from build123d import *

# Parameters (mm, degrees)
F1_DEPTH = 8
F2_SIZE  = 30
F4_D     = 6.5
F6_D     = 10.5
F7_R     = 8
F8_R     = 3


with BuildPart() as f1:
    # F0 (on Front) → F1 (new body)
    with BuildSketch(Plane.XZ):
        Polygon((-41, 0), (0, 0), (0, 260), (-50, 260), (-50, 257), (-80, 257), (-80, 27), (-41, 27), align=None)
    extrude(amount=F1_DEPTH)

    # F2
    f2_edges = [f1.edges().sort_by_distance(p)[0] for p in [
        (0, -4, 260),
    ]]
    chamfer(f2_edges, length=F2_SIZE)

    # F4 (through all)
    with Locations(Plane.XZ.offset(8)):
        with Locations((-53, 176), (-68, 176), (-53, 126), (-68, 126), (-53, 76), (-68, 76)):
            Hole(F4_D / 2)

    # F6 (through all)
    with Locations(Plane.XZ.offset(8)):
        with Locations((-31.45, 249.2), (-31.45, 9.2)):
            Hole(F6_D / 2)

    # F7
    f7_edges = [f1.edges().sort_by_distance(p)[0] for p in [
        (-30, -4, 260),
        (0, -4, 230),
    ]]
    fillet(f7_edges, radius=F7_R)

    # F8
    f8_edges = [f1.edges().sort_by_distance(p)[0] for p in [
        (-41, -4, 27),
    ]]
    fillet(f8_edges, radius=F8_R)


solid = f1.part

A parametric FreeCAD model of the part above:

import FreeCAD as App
import Part
import Sketcher
from FreeCAD import Vector


def edges_at(feature, points):
    """Names of the edges that pass closest to the given points."""
    edges = feature.Shape.Edges
    near = lambda p: min(range(len(edges)), key=lambda i: edges[i].distToShape(Part.Vertex(*p))[0])
    return sorted({f"Edge{near(p) + 1}" for p in points})

doc = App.newDocument("Part")
body = doc.addObject("PartDesign::Body", "Body")

# Sketch on XZ plane
sketch1 = body.newObject("Sketcher::SketchObject", "Sketch")
sketch1.AttachmentSupport = (doc.getObject("XZ_Plane"), [""])
sketch1.MapMode = "FlatFace"
sketch1.addGeometry(Part.LineSegment(Vector(-41, 0, 0), Vector(0, 0, 0)), False)
sketch1.addGeometry(Part.LineSegment(Vector(0, 0, 0), Vector(0, 260, 0)), False)
sketch1.addGeometry(Part.LineSegment(Vector(0, 260, 0), Vector(-50, 260, 0)), False)
sketch1.addGeometry(Part.LineSegment(Vector(-50, 260, 0), Vector(-50, 257, 0)), False)
sketch1.addGeometry(Part.LineSegment(Vector(-50, 257, 0), Vector(-80, 257, 0)), False)
sketch1.addGeometry(Part.LineSegment(Vector(-80, 257, 0), Vector(-80, 27, 0)), False)
sketch1.addGeometry(Part.LineSegment(Vector(-80, 27, 0), Vector(-41, 27, 0)), False)
sketch1.addGeometry(Part.LineSegment(Vector(-41, 27, 0), Vector(-41, 0, 0)), False)
sketch1.addConstraint(Sketcher.Constraint("Coincident", 0, 2, 1, 1))
sketch1.addConstraint(Sketcher.Constraint("Coincident", 1, 2, 2, 1))
sketch1.addConstraint(Sketcher.Constraint("Coincident", 2, 2, 3, 1))
sketch1.addConstraint(Sketcher.Constraint("Coincident", 3, 2, 4, 1))
sketch1.addConstraint(Sketcher.Constraint("Coincident", 4, 2, 5, 1))
sketch1.addConstraint(Sketcher.Constraint("Coincident", 5, 2, 6, 1))
sketch1.addConstraint(Sketcher.Constraint("Coincident", 6, 2, 7, 1))
sketch1.addConstraint(Sketcher.Constraint("Coincident", 7, 2, 0, 1))
sketch1.addConstraint(Sketcher.Constraint("Horizontal", 0))
sketch1.addConstraint(Sketcher.Constraint("Vertical", 1))
sketch1.addConstraint(Sketcher.Constraint("Horizontal", 2))
sketch1.addConstraint(Sketcher.Constraint("Vertical", 3))
sketch1.addConstraint(Sketcher.Constraint("Horizontal", 4))
sketch1.addConstraint(Sketcher.Constraint("Vertical", 5))
sketch1.addConstraint(Sketcher.Constraint("Horizontal", 6))
sketch1.addConstraint(Sketcher.Constraint("Vertical", 7))
sketch1.addConstraint(Sketcher.Constraint("Coincident", 0, 2, -1, 1))
sketch1.addConstraint(Sketcher.Constraint("DistanceX", 0, 1, 0, 2, 41.0))
sketch1.addConstraint(Sketcher.Constraint("DistanceX", 2, 2, 2, 1, 50.0))
sketch1.addConstraint(Sketcher.Constraint("DistanceX", 4, 2, 4, 1, 30.0))
sketch1.addConstraint(Sketcher.Constraint("DistanceY", 1, 1, 1, 2, 260.0))
sketch1.addConstraint(Sketcher.Constraint("DistanceY", 3, 2, 3, 1, 3.0))
sketch1.addConstraint(Sketcher.Constraint("DistanceY", 5, 2, 5, 1, 230.0))
pad1 = body.newObject("PartDesign::Pad", "Pad")
pad1.Profile = sketch1
pad1.Length = 8
doc.recompute()

chamfer = body.newObject("PartDesign::Chamfer", "Chamfer")
chamfer.Base = (pad1, edges_at(pad1, [(0, -4, 260)]))
chamfer.Size = 30

# Sketch on XZ plane
sketch2 = body.newObject("Sketcher::SketchObject", "Sketch001")
sketch2.AttachmentSupport = (doc.getObject("XZ_Plane"), [""])
sketch2.MapMode = "FlatFace"
sketch2.AttachmentOffset = App.Placement(Vector(0, 0, 8), App.Rotation())
sketch2.addGeometry(Part.Circle(Vector(-53, 176, 0), Vector(0, 0, 1), 3.25), False)
sketch2.addGeometry(Part.Circle(Vector(-68, 176, 0), Vector(0, 0, 1), 3.25), False)
sketch2.addGeometry(Part.Circle(Vector(-53, 126, 0), Vector(0, 0, 1), 3.25), False)
sketch2.addGeometry(Part.Circle(Vector(-68, 126, 0), Vector(0, 0, 1), 3.25), False)
sketch2.addGeometry(Part.Circle(Vector(-53, 76, 0), Vector(0, 0, 1), 3.25), False)
sketch2.addGeometry(Part.Circle(Vector(-68, 76, 0), Vector(0, 0, 1), 3.25), False)
sketch2.addConstraint(Sketcher.Constraint("Equal", 0, 1))
sketch2.addConstraint(Sketcher.Constraint("Equal", 1, 2))
sketch2.addConstraint(Sketcher.Constraint("Equal", 2, 3))
sketch2.addConstraint(Sketcher.Constraint("Equal", 3, 4))
sketch2.addConstraint(Sketcher.Constraint("Equal", 4, 5))
sketch2.addConstraint(Sketcher.Constraint("Horizontal", 0, 3, 1, 3))
sketch2.addConstraint(Sketcher.Constraint("Horizontal", 2, 3, 3, 3))
sketch2.addConstraint(Sketcher.Constraint("Horizontal", 4, 3, 5, 3))
sketch2.addConstraint(Sketcher.Constraint("Vertical", 0, 3, 2, 3))
sketch2.addConstraint(Sketcher.Constraint("Vertical", 1, 3, 3, 3))
sketch2.addConstraint(Sketcher.Constraint("Vertical", 2, 3, 4, 3))
sketch2.addConstraint(Sketcher.Constraint("Vertical", 3, 3, 5, 3))
sketch2.addConstraint(Sketcher.Constraint("Diameter", 0, 6.5))
sketch2.addConstraint(Sketcher.Constraint("DistanceX", 0, 3, -1, 1, 53.0))
sketch2.addConstraint(Sketcher.Constraint("DistanceY", -1, 1, 0, 3, 176.0))
sketch2.addConstraint(Sketcher.Constraint("DistanceX", 1, 3, -1, 1, 68.0))
sketch2.addConstraint(Sketcher.Constraint("DistanceY", -1, 1, 2, 3, 126.0))
sketch2.addConstraint(Sketcher.Constraint("DistanceY", -1, 1, 4, 3, 76.0))
doc.recompute()
hole = body.newObject("PartDesign::Hole", "Hole")
hole.Profile = sketch2
hole.ThreadType = "None"
hole.Diameter = 6.5
hole.DepthType = "ThroughAll"

# Sketch on XZ plane
sketch3 = body.newObject("Sketcher::SketchObject", "Sketch002")
sketch3.AttachmentSupport = (doc.getObject("XZ_Plane"), [""])
sketch3.MapMode = "FlatFace"
sketch3.AttachmentOffset = App.Placement(Vector(0, 0, 8), App.Rotation())
sketch3.addGeometry(Part.Circle(Vector(-31.45, 249.2, 0), Vector(0, 0, 1), 5.25), False)
sketch3.addGeometry(Part.Circle(Vector(-31.45, 9.2, 0), Vector(0, 0, 1), 5.25), False)
sketch3.addConstraint(Sketcher.Constraint("Equal", 0, 1))
sketch3.addConstraint(Sketcher.Constraint("Vertical", 0, 3, 1, 3))
sketch3.addConstraint(Sketcher.Constraint("Diameter", 0, 10.5))
sketch3.addConstraint(Sketcher.Constraint("DistanceY", 1, 3, 0, 3, 240.0))
sketch3.addConstraint(Sketcher.Constraint("DistanceY", -1, 1, 0, 3, 249.2))
sketch3.addConstraint(Sketcher.Constraint("DistanceX", 0, 3, -1, 1, 31.45))
doc.recompute()
hole2 = body.newObject("PartDesign::Hole", "Hole001")
hole2.Profile = sketch3
hole2.ThreadType = "None"
hole2.Diameter = 10.5
hole2.DepthType = "ThroughAll"
doc.recompute()

fillet = body.newObject("PartDesign::Fillet", "Fillet")
fillet.Base = (hole2, edges_at(hole2, [(-30, -4, 260), (0, -4, 230)]))
fillet.Radius = 8
doc.recompute()

fillet2 = body.newObject("PartDesign::Fillet", "Fillet001")
fillet2.Base = (fillet, edges_at(fillet, [(-41, -4, 27)]))
fillet2.Radius = 3

doc.recompute()
